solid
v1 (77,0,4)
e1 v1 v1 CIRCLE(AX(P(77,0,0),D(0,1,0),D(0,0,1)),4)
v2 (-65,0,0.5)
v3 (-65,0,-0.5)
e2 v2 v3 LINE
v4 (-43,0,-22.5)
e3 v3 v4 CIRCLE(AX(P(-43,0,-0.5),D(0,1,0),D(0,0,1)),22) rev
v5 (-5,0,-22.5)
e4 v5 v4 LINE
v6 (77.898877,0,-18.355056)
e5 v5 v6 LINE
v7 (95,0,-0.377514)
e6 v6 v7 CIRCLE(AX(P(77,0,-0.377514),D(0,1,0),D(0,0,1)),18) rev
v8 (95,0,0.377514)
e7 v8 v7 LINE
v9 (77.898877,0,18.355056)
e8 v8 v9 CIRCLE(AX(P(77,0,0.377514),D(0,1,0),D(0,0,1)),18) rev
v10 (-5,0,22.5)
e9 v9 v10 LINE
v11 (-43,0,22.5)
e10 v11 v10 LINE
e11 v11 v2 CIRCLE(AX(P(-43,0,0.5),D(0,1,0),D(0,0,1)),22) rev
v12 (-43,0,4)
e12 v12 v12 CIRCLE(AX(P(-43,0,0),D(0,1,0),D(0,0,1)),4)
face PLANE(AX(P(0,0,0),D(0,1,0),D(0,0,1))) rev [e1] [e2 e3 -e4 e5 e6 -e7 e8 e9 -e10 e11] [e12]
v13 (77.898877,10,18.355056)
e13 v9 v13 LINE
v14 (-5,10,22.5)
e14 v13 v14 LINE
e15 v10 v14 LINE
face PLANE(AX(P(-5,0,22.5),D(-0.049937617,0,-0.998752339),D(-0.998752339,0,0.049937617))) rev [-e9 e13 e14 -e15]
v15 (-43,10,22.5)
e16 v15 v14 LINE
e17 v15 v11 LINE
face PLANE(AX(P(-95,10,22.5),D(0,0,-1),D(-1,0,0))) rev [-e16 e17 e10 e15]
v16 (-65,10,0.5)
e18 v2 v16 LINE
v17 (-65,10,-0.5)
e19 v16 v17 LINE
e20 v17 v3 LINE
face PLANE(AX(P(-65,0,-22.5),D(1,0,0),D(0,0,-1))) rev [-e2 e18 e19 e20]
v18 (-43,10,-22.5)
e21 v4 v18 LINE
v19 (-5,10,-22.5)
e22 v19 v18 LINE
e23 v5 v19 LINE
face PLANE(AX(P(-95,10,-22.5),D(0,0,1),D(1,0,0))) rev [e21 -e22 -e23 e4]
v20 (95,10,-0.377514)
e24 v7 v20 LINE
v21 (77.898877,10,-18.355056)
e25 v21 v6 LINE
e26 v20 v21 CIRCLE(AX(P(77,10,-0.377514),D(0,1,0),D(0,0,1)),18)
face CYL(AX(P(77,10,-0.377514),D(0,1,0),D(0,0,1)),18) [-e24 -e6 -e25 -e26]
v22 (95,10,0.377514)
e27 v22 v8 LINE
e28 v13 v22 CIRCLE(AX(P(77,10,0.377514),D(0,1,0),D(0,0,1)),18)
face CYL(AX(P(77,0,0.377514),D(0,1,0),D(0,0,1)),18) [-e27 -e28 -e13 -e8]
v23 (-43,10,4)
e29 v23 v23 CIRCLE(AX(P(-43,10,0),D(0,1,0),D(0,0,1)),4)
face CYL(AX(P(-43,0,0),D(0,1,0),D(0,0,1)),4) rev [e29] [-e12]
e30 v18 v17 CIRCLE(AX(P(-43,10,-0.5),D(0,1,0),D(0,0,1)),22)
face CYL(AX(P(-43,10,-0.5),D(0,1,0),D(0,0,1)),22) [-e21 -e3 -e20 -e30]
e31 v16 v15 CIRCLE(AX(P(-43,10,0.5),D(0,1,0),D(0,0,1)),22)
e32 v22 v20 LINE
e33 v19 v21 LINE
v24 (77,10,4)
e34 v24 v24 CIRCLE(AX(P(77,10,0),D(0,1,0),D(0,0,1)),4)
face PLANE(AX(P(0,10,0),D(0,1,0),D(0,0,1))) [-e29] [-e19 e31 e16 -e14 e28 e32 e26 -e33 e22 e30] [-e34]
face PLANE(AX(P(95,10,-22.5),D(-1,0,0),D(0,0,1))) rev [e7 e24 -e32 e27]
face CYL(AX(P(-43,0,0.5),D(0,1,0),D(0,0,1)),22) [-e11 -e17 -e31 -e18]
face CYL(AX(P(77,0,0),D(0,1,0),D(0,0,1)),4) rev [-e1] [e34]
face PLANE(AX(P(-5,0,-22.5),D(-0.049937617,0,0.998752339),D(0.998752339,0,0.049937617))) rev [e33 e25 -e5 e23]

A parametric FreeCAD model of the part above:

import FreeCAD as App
import Part
import Sketcher

V = App.Vector


def edges_at(feature, points):
    """Names of the edges that pass closest to the given points."""
    edges = feature.Shape.Edges
    near = lambda p: min(range(len(edges)), key=lambda i: edges[i].distToShape(Part.Vertex(*p))[0])
    return sorted({f"Edge{near(p) + 1}" for p in points})

doc = App.newDocument("Part")
body = doc.addObject("PartDesign::Body", "Body")

sketch1 = doc.addObject("Sketcher::SketchObject", "Sketch")
body.addObject(sketch1)
sketch1.AttachmentSupport = (doc.XZ_Plane, [""])
sketch1.MapMode = "FlatFace"
sketch1.addGeometry(Part.LineSegment(V(-95, -22, 0), V(-95, 22, 0)), False)
sketch1.addGeometry(Part.LineSegment(V(-95, 22, 0), V(95, 22, 0)), False)
sketch1.addGeometry(Part.LineSegment(V(95, 22, 0), V(95, -22, 0)), False)
sketch1.addGeometry(Part.LineSegment(V(95, -22, 0), V(-95, -22, 0)), False)
sketch1.addConstraint(Sketcher.Constraint("Coincident", 0, 2, 1, 1))
sketch1.addConstraint(Sketcher.Constraint("Coincident", 1, 2, 2, 1))
sketch1.addConstraint(Sketcher.Constraint("Coincident", 2, 2, 3, 1))
sketch1.addConstraint(Sketcher.Constraint("Coincident", 3, 2, 0, 1))
sketch1.addConstraint(Sketcher.Constraint("Vertical", 0))
sketch1.addConstraint(Sketcher.Constraint("Horizontal", 1))
sketch1.addConstraint(Sketcher.Constraint("Vertical", 2))
sketch1.addConstraint(Sketcher.Constraint("Horizontal", 3))
sketch1.addConstraint(Sketcher.Constraint("Symmetric", 0, 2, 2, 2, -1, 1))
sketch1.addConstraint(Sketcher.Constraint("DistanceX", 1, 1, 1, 2, 190.0))
sketch1.addConstraint(Sketcher.Constraint("DistanceY", 0, 1, 0, 2, 45.0))
pad1 = doc.addObject("PartDesign::Pad", "Pad")
body.addObject(pad1)
pad1.Profile = sketch1
pad1.Length = 10
pad1.Reversed = True

sketch2 = doc.addObject("Sketcher::SketchObject", "Sketch001")
body.addObject(sketch2)
sketch2.AttachmentSupport = (doc.XZ_Plane, [""])
sketch2.MapMode = "FlatFace"
sketch2.AttachmentOffset = App.Placement(V(0, 0, -10), App.Rotation())
sketch2.addGeometry(Part.Circle(V(-43, 0, 0), V(0, 0, 1), 4), False)
sketch2.addGeometry(Part.Circle(V(77, 0, 0), V(0, 0, 1), 4), False)
sketch2.addConstraint(Sketcher.Constraint("Equal", 0, 1))
sketch2.addConstraint(Sketcher.Constraint("PointOnObject", 0, 3, -1))
sketch2.addConstraint(Sketcher.Constraint("PointOnObject", 1, 3, -1))
sketch2.addConstraint(Sketcher.Constraint("Diameter", 0, 8.0))
sketch2.addConstraint(Sketcher.Constraint("DistanceX", 0, 3, -1, 1, 43.0))
sketch2.addConstraint(Sketcher.Constraint("DistanceX", -1, 1, 1, 3, 77.0))
pocket1 = doc.addObject("PartDesign::Pocket", "Pocket")
body.addObject(pocket1)
pocket1.Profile = sketch2
pocket1.Length = 10
pocket1.Reversed = True

sketch3 = doc.addObject("Sketcher::SketchObject", "Sketch002")
body.addObject(sketch3)
sketch3.AttachmentSupport = (doc.XZ_Plane, [""])
sketch3.MapMode = "FlatFace"
sketch3.AttachmentOffset = App.Placement(V(0, 0, -10), App.Rotation())
sketch3.addGeometry(Part.LineSegment(V(-5, 22, 0), V(95, 22, 0)), False)
sketch3.addGeometry(Part.LineSegment(V(95, 22, 0), V(95, 18, 0)), False)
sketch3.addGeometry(Part.LineSegment(V(95, 18, 0), V(-5, 22, 0)), False)
sketch3.addGeometry(Part.LineSegment(V(-5, -22, 0), V(95, -18, 0)), False)
sketch3.addGeometry(Part.LineSegment(V(95, -18, 0), V(95, -22, 0)), False)
sketch3.addGeometry(Part.LineSegment(V(95, -22, 0), V(-5, -22, 0)), False)
sketch3.addGeometry(Part.LineSegment(V(-95, -22, 0), V(-95, 22, 0)), False)
sketch3.addGeometry(Part.LineSegment(V(-95, 22, 0), V(-65, 22, 0)), False)
sketch3.addGeometry(Part.LineSegment(V(-65, 22, 0), V(-65, -22, 0)), False)
sketch3.addGeometry(Part.LineSegment(V(-65, -22, 0), V(-95, -22, 0)), False)
sketch3.addConstraint(Sketcher.Constraint("Coincident", 0, 2, 1, 1))
sketch3.addConstraint(Sketcher.Constraint("Coincident", 1, 2, 2, 1))
sketch3.addConstraint(Sketcher.Constraint("Coincident", 2, 2, 0, 1))
sketch3.addConstraint(Sketcher.Constraint("Coincident", 3, 2, 4, 1))
sketch3.addConstraint(Sketcher.Constraint("Coincident", 4, 2, 5, 1))
sketch3.addConstraint(Sketcher.Constraint("Coincident", 5, 2, 3, 1))
sketch3.addConstraint(Sketcher.Constraint("Coincident", 6, 2, 7, 1))
sketch3.addConstraint(Sketcher.Constraint("Coincident", 7, 2, 8, 1))
sketch3.addConstraint(Sketcher.Constraint("Coincident", 8, 2, 9, 1))
sketch3.addConstraint(Sketcher.Constraint("Coincident", 9, 2, 6, 1))
sketch3.addConstraint(Sketcher.Constraint("Horizontal", 0))
sketch3.addConstraint(Sketcher.Constraint("Vertical", 1))
sketch3.addConstraint(Sketcher.Constraint("Vertical", 4))
sketch3.addConstraint(Sketcher.Constraint("Horizontal", 5))
sketch3.addConstraint(Sketcher.Constraint("Vertical", 6))
sketch3.addConstraint(Sketcher.Constraint("Horizontal", 7))
sketch3.addConstraint(Sketcher.Constraint("Vertical", 8))
sketch3.addConstraint(Sketcher.Constraint("Horizontal", 9))
sketch3.addConstraint(Sketcher.Constraint("Symmetric", 4, 2, 6, 2, -1, 1))
sketch3.addConstraint(Sketcher.Constraint("Symmetric", 0, 2, 9, 2, -1, 1))
sketch3.addConstraint(Sketcher.Constraint("Symmetric", 2, 2, 5, 2, -1))
sketch3.addConstraint(Sketcher.Constraint("Equal", 1, 4))
sketch3.addConstraint(Sketcher.Constraint("DistanceX", 0, 1, 0, 2, 100.0))
sketch3.addConstraint(Sketcher.Constraint("DistanceX", 7, 1, 7, 2, 30.0))
sketch3.addConstraint(Sketcher.Constraint("DistanceY", 1, 2, 1, 1, 5.0))
sketch3.addConstraint(Sketcher.Constraint("DistanceY", 6, 1, 6, 2, 45.0))
sketch3.addConstraint(Sketcher.Constraint("DistanceX", -1, 1, 0, 2, 95.0))
pocket2 = doc.addObject("PartDesign::Pocket", "Pocket001")
body.addObject(pocket2)
pocket2.Profile = sketch3
pocket2.Length = 10
pocket2.Reversed = True
doc.recompute()

fillet = doc.addObject("PartDesign::Fillet", "Fillet")
body.addObject(fillet)
fillet.Base = (pocket2, edges_at(pocket2, [(95, 5, -17.5), (95, 5, 17.5)]))
fillet.Radius = 18
doc.recompute()

fillet2 = doc.addObject("PartDesign::Fillet", "Fillet001")
body.addObject(fillet2)
fillet2.Base = (fillet, edges_at(fillet, [(-65, 5, -22.5), (-65, 5, 22.5)]))
fillet2.Radius = 22

doc.recompute()
